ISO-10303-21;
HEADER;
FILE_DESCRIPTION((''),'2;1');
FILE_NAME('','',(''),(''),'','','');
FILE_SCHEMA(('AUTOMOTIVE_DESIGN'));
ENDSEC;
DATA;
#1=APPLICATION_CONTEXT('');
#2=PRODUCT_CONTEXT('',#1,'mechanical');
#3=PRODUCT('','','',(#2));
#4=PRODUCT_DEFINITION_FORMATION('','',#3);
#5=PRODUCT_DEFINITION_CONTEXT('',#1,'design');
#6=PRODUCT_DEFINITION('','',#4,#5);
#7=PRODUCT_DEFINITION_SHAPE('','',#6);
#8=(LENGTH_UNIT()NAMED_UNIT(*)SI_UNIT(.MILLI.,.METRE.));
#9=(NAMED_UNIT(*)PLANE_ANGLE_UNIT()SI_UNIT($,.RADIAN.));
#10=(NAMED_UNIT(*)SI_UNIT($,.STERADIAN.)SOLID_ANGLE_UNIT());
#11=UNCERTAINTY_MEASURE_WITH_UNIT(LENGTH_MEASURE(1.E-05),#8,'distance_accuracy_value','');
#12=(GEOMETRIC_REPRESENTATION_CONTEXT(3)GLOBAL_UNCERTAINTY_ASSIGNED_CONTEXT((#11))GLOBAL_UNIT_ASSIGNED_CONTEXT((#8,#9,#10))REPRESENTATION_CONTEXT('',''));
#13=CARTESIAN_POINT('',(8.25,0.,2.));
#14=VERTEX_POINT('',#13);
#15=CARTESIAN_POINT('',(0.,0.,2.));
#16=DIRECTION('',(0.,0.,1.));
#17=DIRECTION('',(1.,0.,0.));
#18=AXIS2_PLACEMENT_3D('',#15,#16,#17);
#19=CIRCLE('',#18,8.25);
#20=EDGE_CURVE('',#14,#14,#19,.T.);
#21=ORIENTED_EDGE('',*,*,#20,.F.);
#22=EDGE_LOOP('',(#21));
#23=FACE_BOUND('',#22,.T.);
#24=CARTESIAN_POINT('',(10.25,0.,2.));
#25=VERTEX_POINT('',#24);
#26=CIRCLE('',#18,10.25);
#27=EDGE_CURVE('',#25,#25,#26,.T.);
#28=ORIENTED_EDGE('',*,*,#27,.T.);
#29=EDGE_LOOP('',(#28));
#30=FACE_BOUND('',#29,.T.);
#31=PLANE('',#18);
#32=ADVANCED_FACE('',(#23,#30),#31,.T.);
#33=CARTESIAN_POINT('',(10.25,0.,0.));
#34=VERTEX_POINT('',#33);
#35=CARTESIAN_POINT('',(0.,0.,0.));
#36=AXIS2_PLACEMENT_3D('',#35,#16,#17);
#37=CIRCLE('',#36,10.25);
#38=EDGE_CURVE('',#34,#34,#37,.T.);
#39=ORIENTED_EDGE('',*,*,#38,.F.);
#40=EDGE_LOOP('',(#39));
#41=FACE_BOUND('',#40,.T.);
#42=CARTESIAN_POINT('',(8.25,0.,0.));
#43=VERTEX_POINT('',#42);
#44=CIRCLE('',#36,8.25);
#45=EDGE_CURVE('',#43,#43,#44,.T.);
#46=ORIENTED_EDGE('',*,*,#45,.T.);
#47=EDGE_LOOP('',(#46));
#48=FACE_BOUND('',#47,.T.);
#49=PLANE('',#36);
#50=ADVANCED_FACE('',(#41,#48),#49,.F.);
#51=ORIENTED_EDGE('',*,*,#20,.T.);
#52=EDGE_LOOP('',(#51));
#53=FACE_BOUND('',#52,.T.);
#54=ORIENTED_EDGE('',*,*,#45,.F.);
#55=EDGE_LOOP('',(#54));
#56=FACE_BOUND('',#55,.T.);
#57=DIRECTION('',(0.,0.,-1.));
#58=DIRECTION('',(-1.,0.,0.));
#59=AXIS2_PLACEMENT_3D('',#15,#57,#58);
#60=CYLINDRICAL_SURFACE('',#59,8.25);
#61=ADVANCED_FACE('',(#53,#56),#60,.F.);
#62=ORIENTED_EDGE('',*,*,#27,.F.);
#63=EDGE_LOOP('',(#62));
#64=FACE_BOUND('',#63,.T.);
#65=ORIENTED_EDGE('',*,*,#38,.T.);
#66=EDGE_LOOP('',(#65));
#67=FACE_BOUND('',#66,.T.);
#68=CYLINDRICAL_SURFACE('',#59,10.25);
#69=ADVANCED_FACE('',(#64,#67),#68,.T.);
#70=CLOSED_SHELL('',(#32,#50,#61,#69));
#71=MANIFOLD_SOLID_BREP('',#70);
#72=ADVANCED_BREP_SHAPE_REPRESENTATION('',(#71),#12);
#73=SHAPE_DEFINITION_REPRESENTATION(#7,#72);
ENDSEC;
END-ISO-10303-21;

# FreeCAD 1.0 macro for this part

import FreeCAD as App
import Part
import Sketcher
from FreeCAD import Vector

doc = App.newDocument("Part")
body = doc.addObject("PartDesign::Body", "Body")

sketch1 = doc.addObject("Sketcher::SketchObject", "Sketch")
body.addObject(sketch1)
sketch1.AttachmentSupport = (doc.XY_Plane, [""])
sketch1.MapMode = "FlatFace"
sketch1.addGeometry([
    Part.Circle(Vector(0, 0, 0), Vector(0, 0, 1), 10),
    Part.Circle(Vector(0, 0, 0), Vector(0, 0, 1), 8),
], False)
sketch1.addConstraint([
    Sketcher.Constraint("Coincident", 0, 3, -1, 1),
    Sketcher.Constraint("Coincident", 1, 3, -1, 1),
    Sketcher.Constraint("Diameter", 0, 20.5),
    Sketcher.Constraint("Diameter", 1, 16.5),
])
pad1 = doc.addObject("PartDesign::Pad", "Pad")
body.addObject(pad1)
pad1.Profile = sketch1
pad1.Length = 2

doc.recompute()
